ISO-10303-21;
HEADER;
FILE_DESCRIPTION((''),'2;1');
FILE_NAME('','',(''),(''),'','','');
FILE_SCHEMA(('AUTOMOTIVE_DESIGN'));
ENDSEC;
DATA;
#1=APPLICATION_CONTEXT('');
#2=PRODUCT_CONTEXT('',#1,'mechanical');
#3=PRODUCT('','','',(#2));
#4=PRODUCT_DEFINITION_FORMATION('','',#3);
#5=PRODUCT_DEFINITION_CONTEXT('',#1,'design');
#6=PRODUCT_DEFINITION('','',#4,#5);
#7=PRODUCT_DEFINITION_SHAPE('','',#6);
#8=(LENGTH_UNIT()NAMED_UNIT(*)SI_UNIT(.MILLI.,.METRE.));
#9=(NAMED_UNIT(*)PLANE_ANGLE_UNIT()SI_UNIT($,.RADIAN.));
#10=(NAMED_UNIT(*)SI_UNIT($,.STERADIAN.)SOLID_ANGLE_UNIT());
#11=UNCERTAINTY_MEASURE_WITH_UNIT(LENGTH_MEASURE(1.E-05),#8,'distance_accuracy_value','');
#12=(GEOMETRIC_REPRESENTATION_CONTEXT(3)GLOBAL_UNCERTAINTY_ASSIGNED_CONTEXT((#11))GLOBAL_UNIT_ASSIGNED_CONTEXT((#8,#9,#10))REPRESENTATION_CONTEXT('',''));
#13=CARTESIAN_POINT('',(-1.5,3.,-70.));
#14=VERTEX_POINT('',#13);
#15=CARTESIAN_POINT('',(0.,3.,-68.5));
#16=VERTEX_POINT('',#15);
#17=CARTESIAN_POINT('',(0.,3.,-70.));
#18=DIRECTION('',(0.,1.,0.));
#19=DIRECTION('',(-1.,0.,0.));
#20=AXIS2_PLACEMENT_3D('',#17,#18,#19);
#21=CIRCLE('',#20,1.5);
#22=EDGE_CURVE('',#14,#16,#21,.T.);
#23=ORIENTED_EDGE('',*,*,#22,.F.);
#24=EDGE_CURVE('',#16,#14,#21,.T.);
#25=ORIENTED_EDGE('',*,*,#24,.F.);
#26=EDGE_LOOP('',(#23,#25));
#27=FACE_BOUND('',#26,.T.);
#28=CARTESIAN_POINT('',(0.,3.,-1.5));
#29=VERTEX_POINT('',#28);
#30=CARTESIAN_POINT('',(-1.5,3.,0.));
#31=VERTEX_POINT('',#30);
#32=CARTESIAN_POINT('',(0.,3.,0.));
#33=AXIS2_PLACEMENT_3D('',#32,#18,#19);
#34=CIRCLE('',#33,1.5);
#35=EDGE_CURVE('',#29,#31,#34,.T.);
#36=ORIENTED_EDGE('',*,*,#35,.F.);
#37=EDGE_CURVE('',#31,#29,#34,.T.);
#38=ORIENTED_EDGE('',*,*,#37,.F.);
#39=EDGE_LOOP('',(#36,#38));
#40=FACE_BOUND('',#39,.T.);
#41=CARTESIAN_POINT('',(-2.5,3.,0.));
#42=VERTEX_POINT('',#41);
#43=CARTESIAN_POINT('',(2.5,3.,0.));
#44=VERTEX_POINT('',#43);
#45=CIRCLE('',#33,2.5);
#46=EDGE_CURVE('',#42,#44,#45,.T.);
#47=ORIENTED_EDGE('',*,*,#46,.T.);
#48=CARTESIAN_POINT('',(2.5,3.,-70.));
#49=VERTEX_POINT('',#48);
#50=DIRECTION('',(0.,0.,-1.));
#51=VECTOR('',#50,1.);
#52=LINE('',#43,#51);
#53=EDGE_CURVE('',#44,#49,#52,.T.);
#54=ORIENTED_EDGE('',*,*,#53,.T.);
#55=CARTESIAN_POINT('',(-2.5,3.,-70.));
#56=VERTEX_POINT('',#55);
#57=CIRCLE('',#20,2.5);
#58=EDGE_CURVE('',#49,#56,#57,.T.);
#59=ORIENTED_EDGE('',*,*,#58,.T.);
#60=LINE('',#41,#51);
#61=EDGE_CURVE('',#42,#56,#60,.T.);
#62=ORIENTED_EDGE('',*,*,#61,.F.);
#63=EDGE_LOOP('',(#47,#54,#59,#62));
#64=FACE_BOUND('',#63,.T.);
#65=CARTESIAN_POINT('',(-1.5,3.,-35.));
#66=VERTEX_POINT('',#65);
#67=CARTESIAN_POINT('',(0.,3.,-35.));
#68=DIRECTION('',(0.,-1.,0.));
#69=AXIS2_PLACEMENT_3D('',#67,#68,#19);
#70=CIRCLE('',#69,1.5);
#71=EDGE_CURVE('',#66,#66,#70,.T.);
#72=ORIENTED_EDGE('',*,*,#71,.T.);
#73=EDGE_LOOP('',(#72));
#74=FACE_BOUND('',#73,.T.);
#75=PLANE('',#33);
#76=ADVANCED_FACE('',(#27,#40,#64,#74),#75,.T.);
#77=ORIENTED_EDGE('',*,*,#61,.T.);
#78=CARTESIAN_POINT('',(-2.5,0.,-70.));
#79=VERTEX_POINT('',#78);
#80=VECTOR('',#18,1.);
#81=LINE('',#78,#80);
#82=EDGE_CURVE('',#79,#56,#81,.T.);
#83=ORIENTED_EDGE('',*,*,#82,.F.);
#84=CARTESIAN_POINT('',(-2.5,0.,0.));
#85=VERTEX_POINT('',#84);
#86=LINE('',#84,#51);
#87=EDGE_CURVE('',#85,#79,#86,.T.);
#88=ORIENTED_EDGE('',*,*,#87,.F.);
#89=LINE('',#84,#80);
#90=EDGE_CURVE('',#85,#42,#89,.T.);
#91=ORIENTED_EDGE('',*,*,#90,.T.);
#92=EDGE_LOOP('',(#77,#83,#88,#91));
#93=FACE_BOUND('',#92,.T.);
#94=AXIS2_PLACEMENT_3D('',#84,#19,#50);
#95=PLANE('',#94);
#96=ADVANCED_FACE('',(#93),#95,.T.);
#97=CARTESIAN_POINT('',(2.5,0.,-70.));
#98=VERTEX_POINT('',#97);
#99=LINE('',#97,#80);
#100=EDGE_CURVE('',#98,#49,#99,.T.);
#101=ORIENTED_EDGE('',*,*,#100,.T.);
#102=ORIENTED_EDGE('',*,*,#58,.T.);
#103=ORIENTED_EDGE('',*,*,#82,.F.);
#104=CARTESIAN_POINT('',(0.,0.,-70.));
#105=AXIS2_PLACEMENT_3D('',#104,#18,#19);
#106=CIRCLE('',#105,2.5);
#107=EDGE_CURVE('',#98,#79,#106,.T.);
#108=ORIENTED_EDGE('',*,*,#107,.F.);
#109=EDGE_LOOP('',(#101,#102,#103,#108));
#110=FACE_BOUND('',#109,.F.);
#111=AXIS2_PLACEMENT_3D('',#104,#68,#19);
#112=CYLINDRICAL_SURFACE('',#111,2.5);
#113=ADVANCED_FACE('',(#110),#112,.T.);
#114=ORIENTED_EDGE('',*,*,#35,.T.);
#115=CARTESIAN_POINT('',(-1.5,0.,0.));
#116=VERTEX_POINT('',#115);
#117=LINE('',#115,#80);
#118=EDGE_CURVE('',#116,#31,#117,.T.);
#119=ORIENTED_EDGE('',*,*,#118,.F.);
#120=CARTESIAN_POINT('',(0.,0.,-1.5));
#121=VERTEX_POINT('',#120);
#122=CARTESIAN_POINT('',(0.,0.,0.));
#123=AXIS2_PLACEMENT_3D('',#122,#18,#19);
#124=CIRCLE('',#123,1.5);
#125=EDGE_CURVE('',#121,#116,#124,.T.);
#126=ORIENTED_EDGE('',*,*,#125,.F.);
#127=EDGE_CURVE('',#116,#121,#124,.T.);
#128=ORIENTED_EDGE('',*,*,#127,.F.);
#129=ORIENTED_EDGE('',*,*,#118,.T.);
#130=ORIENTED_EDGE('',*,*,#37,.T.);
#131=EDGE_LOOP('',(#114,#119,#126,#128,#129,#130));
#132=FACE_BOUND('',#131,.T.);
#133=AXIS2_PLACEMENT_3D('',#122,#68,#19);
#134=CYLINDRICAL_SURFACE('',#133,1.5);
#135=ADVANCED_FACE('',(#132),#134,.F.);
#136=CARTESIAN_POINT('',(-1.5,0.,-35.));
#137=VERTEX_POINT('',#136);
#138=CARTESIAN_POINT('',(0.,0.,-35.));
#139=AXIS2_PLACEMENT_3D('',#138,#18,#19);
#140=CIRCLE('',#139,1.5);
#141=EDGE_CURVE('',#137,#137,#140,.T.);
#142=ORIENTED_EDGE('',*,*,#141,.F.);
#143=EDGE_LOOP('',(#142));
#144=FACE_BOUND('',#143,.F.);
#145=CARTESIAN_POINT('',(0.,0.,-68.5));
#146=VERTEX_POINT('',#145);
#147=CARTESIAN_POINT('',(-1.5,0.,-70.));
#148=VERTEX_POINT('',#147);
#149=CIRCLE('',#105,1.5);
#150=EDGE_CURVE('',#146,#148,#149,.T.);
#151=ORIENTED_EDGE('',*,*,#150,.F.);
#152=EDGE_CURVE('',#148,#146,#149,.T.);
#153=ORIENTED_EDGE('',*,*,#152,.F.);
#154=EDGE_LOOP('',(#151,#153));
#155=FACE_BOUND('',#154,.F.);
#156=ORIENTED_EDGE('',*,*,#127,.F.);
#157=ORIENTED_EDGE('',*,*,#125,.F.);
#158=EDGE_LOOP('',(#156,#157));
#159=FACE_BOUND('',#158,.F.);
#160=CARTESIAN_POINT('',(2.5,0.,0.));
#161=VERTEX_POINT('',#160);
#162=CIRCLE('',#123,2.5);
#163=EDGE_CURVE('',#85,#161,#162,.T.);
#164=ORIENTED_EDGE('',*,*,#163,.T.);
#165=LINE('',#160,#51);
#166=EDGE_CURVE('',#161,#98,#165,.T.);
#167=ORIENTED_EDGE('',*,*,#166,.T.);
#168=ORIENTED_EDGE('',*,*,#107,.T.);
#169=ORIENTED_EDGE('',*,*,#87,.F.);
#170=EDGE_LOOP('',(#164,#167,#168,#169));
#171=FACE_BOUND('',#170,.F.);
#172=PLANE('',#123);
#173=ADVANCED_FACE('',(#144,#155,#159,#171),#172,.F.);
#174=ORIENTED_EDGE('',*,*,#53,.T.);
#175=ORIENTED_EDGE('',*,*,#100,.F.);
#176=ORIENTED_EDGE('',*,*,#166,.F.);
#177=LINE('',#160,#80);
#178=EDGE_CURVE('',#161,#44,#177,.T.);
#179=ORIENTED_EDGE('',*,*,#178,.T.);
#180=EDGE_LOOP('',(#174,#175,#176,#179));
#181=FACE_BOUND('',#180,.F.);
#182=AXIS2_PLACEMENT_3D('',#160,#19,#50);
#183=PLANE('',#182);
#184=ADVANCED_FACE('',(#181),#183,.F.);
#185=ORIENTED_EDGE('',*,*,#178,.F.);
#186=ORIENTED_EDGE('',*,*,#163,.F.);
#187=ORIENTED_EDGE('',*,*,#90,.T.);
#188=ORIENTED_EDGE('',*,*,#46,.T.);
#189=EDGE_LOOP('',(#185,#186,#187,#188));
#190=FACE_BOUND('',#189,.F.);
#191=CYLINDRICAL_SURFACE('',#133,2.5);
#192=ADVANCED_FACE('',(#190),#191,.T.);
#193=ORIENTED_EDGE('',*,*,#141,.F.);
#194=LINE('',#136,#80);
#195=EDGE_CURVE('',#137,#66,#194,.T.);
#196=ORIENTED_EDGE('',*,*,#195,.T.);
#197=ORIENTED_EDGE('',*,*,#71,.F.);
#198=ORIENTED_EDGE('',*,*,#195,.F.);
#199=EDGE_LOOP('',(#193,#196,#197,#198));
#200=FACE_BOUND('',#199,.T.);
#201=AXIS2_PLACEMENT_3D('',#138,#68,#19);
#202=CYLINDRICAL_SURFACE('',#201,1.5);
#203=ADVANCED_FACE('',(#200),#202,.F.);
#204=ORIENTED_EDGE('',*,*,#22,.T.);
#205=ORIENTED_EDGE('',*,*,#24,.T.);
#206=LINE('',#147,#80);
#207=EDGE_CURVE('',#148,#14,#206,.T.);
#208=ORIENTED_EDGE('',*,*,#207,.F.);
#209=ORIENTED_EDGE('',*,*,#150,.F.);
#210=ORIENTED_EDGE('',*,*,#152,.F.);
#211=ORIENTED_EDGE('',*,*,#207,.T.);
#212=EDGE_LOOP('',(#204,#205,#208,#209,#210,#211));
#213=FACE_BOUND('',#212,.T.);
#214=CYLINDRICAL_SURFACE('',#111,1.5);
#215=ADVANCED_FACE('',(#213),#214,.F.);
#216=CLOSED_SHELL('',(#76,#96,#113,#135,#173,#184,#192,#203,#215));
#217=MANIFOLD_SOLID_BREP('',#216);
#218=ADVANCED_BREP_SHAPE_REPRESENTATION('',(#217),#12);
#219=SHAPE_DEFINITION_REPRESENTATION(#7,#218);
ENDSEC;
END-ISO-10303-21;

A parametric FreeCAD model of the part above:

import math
import FreeCAD as App
import Part
import Sketcher

V = App.Vector
Q = App.Units.Quantity

doc = App.newDocument("Part")
body = doc.addObject("PartDesign::Body", "Body")

sketch1 = doc.addObject("Sketcher::SketchObject", "Sketch")
body.addObject(sketch1)
sketch1.AttachmentSupport = (doc.XZ_Plane, [""])
sketch1.MapMode = "FlatFace"
sketch1.addGeometry([
    Part.ArcOfCircle(Part.Circle(V(0, 0, 0), V(0, 0, 1), 2.5), math.radians(0), math.radians(180)),
    Part.LineSegment(V(2.5, 0, 0), V(2.5, -70, 0)),
    Part.ArcOfCircle(Part.Circle(V(0, -70, 0), V(0, 0, 1), 2.5), math.radians(180), math.radians(360)),
    Part.LineSegment(V(-2.5, -70, 0), V(-2.5, 0, 0)),
    Part.Circle(V(0, 0, 0), V(0, 0, 1), 1.5),
    Part.Circle(V(0, -35, 0), V(0, 0, 1), 1.5),
    Part.Circle(V(0, -70, 0), V(0, 0, 1), 1.5),
], False)
sketch1.addConstraint([
    Sketcher.Constraint("Tangent", 0, 1, 1, 1),
    Sketcher.Constraint("Tangent", 1, 2, 2, 2),
    Sketcher.Constraint("Tangent", 2, 1, 3, 1),
    Sketcher.Constraint("Tangent", 3, 2, 0, 2),
    Sketcher.Constraint("Vertical", 1),
    Sketcher.Constraint("Vertical", 3),
    Sketcher.Constraint("Coincident", 0, 3, -1, 1),
    Sketcher.Constraint("Coincident", 4, 3, -1, 1),
    Sketcher.Constraint("Coincident", 6, 3, 2, 3),
    Sketcher.Constraint("Equal", 4, 5),
    Sketcher.Constraint("Equal", 5, 6),
    Sketcher.Constraint("PointOnObject", 5, 3, -2),
    Sketcher.Constraint("Diameter", 4, Q("3 mm")),
    Sketcher.Constraint("Radius", 0, Q("2.5 mm")),
    Sketcher.Constraint("DistanceY", 5, 3, -1, 1, Q("35 mm")),
    Sketcher.Constraint("DistanceY", 2, 3, 5, 3, Q("35 mm")),
])
pad1 = doc.addObject("PartDesign::Pad", "Pad")
body.addObject(pad1)
pad1.Profile = sketch1
pad1.Length = 3
pad1.Reversed = True

doc.recompute()
